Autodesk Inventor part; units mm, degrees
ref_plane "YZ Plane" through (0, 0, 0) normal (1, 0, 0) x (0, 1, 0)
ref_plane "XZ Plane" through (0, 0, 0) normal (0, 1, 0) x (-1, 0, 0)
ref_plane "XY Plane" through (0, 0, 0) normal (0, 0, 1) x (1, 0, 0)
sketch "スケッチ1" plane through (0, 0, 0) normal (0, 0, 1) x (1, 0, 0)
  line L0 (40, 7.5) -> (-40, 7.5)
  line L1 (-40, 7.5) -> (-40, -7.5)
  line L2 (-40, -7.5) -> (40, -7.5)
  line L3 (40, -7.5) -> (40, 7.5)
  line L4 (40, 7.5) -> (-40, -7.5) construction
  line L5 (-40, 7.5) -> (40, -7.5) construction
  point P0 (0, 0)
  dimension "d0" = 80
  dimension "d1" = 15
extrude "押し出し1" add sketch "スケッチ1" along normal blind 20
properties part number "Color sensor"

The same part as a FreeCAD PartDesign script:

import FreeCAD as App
import Part
import Sketcher
from FreeCAD import Vector
Q = App.Units.Quantity

doc = App.newDocument("Part")
params = doc.addObject("Spreadsheet::Sheet", "Params")
for row, (alias, value) in enumerate([
    ("sketch1_width", "80 mm"),
    ("sketch1_height", "15 mm"),
    ("pad1_length", "20 mm"),
], start=1):
    params.set(f"A{row}", alias)
    params.set(f"B{row}", "=" + value)
    params.setAlias(f"B{row}", alias)

body = doc.addObject("PartDesign::Body", "Body")

# Sketch on XY plane
sketch1 = doc.addObject("Sketcher::SketchObject", "Sketch")
body.addObject(sketch1)
sketch1.AttachmentSupport = (doc.XY_Plane, [""])
sketch1.MapMode = "FlatFace"
sketch1.addGeometry(Part.LineSegment(Vector(40, -8, 0), Vector(40, 8, 0)), False)
sketch1.addGeometry(Part.LineSegment(Vector(40, 8, 0), Vector(-40, 8, 0)), False)
sketch1.addGeometry(Part.LineSegment(Vector(-40, 8, 0), Vector(-40, -8, 0)), False)
sketch1.addGeometry(Part.LineSegment(Vector(-40, -8, 0), Vector(40, -8, 0)), False)
sketch1.addConstraint(Sketcher.Constraint("Coincident", 0, 2, 1, 1))
sketch1.addConstraint(Sketcher.Constraint("Coincident", 1, 2, 2, 1))
sketch1.addConstraint(Sketcher.Constraint("Coincident", 2, 2, 3, 1))
sketch1.addConstraint(Sketcher.Constraint("Coincident", 3, 2, 0, 1))
sketch1.addConstraint(Sketcher.Constraint("Vertical", 0))
sketch1.addConstraint(Sketcher.Constraint("Horizontal", 1))
sketch1.addConstraint(Sketcher.Constraint("Vertical", 2))
sketch1.addConstraint(Sketcher.Constraint("Horizontal", 3))
sketch1.addConstraint(Sketcher.Constraint("Symmetric", 0, 2, 2, 2, -1, 1))
sketch1.addConstraint(Sketcher.Constraint("DistanceX", 1, 2, 1, 1, Q("80 mm")))
sketch1.addConstraint(Sketcher.Constraint("DistanceY", 0, 1, 0, 2, Q("15 mm")))
sketch1.setExpression("Constraints[9]", "Params.sketch1_width")
sketch1.setExpression("Constraints[10]", "Params.sketch1_height")
pad1 = doc.addObject("PartDesign::Pad", "Pad")
body.addObject(pad1)
pad1.Profile = sketch1
pad1.setExpression("Length", "Params.pad1_length")

doc.recompute()
